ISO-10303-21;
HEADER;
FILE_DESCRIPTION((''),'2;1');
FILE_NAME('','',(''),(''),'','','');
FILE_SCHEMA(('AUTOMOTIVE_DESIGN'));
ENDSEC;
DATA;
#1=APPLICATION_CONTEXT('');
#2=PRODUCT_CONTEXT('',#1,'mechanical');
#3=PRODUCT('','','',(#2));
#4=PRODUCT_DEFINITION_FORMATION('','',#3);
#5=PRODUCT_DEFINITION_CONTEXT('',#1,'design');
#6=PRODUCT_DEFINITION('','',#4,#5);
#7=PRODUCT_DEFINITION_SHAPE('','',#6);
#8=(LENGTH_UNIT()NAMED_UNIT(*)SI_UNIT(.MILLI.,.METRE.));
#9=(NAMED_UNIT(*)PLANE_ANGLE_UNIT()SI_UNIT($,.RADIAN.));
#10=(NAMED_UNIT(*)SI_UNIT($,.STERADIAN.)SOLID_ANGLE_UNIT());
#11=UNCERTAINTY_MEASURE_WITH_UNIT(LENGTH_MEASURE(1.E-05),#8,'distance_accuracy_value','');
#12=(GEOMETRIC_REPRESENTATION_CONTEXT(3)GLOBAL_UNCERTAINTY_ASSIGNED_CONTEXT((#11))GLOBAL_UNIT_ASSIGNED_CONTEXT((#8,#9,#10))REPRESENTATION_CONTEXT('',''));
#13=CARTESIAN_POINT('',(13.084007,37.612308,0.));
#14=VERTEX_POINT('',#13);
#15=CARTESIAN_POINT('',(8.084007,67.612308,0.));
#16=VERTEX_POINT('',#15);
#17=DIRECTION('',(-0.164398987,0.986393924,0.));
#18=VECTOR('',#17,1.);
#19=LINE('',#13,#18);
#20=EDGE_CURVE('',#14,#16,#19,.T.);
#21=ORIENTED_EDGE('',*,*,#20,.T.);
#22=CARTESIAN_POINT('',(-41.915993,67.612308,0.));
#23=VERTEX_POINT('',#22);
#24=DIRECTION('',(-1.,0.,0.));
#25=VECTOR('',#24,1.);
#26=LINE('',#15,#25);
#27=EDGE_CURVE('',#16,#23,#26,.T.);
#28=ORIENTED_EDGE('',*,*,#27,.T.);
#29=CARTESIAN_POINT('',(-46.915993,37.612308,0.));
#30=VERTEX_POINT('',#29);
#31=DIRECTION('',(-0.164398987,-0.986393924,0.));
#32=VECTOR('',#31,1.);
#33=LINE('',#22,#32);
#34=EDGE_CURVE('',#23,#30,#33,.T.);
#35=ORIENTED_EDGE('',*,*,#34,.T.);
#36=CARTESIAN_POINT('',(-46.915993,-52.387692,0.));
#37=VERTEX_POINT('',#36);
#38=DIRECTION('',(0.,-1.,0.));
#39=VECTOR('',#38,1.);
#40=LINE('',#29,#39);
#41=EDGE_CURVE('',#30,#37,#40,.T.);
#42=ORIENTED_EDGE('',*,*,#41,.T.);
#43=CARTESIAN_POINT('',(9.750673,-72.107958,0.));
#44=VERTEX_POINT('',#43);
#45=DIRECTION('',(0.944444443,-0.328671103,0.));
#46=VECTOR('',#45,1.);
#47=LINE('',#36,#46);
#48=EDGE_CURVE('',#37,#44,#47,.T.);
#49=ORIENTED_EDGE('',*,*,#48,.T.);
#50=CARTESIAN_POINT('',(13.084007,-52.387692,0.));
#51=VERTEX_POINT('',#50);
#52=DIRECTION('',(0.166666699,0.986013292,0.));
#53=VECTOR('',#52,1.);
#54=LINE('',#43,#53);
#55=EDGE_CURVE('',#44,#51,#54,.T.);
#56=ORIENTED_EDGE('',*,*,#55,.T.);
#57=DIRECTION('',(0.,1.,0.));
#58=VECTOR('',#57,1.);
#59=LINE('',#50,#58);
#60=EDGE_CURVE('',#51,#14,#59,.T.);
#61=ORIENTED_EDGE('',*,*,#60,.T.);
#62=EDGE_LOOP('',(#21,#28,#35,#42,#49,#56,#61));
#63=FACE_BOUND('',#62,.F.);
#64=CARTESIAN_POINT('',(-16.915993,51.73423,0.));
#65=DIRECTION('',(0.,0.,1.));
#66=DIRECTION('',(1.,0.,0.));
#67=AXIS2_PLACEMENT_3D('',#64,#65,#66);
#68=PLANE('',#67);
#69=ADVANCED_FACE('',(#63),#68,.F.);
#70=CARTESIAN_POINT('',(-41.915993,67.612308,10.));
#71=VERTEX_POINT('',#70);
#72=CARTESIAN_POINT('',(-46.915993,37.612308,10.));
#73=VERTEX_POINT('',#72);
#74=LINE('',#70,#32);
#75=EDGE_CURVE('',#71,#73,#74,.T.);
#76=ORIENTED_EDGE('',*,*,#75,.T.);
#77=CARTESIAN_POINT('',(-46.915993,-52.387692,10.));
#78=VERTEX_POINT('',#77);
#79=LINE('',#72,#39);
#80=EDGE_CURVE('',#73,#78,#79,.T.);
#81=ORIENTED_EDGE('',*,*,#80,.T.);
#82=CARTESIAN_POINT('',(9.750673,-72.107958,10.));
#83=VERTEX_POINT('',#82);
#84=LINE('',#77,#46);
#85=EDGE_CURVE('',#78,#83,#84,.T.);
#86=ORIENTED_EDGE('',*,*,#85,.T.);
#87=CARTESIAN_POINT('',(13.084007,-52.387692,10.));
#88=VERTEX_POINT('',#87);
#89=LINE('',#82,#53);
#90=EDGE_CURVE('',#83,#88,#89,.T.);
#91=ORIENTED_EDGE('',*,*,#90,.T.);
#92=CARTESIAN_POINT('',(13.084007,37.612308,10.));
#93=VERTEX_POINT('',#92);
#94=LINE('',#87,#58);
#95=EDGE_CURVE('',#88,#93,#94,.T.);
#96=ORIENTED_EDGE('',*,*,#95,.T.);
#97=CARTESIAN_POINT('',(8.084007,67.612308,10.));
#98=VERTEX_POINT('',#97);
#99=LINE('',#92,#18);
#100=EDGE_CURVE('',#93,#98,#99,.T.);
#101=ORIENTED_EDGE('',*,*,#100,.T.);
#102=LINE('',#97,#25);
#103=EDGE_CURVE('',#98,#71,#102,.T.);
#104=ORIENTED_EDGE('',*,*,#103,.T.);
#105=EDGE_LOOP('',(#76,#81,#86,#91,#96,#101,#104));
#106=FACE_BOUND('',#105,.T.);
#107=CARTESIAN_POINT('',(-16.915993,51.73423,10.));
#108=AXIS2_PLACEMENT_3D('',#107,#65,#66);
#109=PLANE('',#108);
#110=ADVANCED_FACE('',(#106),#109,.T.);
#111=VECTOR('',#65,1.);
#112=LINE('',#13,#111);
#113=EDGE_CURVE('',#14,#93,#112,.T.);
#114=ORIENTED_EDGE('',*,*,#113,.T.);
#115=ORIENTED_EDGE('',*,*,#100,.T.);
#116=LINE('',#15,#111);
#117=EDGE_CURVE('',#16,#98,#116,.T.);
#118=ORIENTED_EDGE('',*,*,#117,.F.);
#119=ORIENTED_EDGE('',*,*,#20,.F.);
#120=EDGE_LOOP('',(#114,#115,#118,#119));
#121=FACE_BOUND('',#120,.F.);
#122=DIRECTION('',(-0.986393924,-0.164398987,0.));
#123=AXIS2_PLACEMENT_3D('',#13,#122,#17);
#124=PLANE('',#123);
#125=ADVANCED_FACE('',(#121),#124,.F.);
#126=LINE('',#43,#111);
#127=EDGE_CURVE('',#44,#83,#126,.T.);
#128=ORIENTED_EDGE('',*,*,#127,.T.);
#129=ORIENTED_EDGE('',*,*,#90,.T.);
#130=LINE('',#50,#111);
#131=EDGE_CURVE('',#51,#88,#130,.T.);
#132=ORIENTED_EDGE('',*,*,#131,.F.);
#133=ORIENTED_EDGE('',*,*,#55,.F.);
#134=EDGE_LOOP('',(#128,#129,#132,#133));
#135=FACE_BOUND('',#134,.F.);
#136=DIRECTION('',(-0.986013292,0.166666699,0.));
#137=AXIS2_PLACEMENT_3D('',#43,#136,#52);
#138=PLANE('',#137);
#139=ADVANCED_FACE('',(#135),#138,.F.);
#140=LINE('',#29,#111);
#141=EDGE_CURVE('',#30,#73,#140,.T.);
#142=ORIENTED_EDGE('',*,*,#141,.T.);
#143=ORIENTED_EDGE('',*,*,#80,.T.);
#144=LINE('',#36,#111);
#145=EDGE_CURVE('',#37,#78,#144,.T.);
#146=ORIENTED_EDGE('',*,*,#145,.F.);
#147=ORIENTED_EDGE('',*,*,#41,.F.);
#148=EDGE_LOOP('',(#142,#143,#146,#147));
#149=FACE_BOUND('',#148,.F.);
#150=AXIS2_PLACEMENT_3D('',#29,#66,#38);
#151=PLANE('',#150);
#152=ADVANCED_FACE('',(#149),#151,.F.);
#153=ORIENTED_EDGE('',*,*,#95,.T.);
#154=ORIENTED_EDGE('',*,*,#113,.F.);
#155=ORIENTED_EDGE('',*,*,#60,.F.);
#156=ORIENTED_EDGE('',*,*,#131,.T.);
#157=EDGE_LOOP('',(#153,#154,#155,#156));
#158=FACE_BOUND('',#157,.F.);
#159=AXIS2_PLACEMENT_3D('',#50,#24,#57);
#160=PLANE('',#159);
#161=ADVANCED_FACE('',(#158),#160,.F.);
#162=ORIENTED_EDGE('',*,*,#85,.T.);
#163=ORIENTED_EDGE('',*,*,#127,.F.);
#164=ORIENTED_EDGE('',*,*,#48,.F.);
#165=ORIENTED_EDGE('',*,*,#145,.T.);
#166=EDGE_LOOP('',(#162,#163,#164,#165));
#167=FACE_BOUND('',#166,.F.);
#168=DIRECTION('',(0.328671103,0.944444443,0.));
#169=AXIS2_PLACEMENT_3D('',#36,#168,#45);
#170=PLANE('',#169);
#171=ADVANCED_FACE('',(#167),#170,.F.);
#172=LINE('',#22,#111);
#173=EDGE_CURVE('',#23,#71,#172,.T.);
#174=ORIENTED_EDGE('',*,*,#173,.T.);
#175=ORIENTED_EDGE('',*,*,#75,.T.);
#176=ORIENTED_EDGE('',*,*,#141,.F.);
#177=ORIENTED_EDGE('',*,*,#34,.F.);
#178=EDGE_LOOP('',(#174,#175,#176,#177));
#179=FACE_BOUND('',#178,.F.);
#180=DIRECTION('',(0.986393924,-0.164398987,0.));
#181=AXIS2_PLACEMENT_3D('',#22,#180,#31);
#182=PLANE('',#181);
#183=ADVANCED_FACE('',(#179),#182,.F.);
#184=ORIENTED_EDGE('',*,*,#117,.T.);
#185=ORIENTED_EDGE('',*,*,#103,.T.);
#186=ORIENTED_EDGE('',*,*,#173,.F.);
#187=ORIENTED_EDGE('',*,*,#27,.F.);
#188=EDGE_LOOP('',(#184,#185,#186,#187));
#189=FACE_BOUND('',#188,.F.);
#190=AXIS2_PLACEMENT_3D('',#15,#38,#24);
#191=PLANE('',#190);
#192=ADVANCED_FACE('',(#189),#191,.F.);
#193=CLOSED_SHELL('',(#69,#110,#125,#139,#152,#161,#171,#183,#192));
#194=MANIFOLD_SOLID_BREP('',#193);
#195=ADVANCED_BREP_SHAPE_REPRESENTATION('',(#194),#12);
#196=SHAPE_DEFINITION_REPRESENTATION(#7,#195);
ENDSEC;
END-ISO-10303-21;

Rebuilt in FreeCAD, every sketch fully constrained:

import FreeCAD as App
import Part
import Sketcher
from FreeCAD import Vector
Q = App.Units.Quantity


def add_polygon(sketch, points):
    """Adds a closed chain of lines whose ends are joined by coincident constraints."""
    first, n = sketch.GeometryCount, len(points)
    for a, b in zip(points, points[1:] + points[:1]):
        sketch.addGeometry(Part.LineSegment(App.Vector(*a, 0), App.Vector(*b, 0)), False)
    for i in range(n):
        sketch.addConstraint(Sketcher.Constraint("Coincident", first + i, 2, first + (i + 1) % n, 1))

doc = App.newDocument("Part")
body = doc.addObject("PartDesign::Body", "Body")

sketch1 = body.newObject("Sketcher::SketchObject", "Sketch")
sketch1.AttachmentSupport = (doc.getObject("XY_Plane"), [""])
sketch1.MapMode = "FlatFace"
add_polygon(sketch1, [(-42, 68), (-47, 38), (-47, -52), (10, -72), (13, -52), (13, 38), (8, 68)])
sketch1.addConstraint(Sketcher.Constraint("Vertical", 1))
sketch1.addConstraint(Sketcher.Constraint("Vertical", 4))
sketch1.addConstraint(Sketcher.Constraint("Horizontal", 6))
sketch1.addConstraint(Sketcher.Constraint("Horizontal", 1, 2, 3, 2))
sketch1.addConstraint(Sketcher.Constraint("Horizontal", 0, 2, 4, 2))
sketch1.addConstraint(Sketcher.Constraint("Equal", 0, 5))
sketch1.addConstraint(Sketcher.Constraint("DistanceX", 6, 2, 6, 1, Q("50 mm")))
sketch1.addConstraint(Sketcher.Constraint("DistanceY", 1, 2, 1, 1, Q("90 mm")))
sketch1.addConstraint(Sketcher.Constraint("Distance", 2, Q("59.999999 mm")))
sketch1.addConstraint(Sketcher.Constraint("Distance", 3, Q("20 mm")))
sketch1.addConstraint(Sketcher.Constraint("DistanceX", 1, 2, 3, 2, Q("60 mm")))
sketch1.addConstraint(Sketcher.Constraint("DistanceY", 4, 2, 5, 2, Q("30 mm")))
sketch1.addConstraint(Sketcher.Constraint("DistanceY", -1, 1, 5, 2, Q("67.612308 mm")))
sketch1.addConstraint(Sketcher.Constraint("DistanceX", 0, 2, -1, 1, Q("46.915993 mm")))
pad1 = body.newObject("PartDesign::Pad", "Pad")
pad1.Profile = sketch1
pad1.Length = 10

doc.recompute()
